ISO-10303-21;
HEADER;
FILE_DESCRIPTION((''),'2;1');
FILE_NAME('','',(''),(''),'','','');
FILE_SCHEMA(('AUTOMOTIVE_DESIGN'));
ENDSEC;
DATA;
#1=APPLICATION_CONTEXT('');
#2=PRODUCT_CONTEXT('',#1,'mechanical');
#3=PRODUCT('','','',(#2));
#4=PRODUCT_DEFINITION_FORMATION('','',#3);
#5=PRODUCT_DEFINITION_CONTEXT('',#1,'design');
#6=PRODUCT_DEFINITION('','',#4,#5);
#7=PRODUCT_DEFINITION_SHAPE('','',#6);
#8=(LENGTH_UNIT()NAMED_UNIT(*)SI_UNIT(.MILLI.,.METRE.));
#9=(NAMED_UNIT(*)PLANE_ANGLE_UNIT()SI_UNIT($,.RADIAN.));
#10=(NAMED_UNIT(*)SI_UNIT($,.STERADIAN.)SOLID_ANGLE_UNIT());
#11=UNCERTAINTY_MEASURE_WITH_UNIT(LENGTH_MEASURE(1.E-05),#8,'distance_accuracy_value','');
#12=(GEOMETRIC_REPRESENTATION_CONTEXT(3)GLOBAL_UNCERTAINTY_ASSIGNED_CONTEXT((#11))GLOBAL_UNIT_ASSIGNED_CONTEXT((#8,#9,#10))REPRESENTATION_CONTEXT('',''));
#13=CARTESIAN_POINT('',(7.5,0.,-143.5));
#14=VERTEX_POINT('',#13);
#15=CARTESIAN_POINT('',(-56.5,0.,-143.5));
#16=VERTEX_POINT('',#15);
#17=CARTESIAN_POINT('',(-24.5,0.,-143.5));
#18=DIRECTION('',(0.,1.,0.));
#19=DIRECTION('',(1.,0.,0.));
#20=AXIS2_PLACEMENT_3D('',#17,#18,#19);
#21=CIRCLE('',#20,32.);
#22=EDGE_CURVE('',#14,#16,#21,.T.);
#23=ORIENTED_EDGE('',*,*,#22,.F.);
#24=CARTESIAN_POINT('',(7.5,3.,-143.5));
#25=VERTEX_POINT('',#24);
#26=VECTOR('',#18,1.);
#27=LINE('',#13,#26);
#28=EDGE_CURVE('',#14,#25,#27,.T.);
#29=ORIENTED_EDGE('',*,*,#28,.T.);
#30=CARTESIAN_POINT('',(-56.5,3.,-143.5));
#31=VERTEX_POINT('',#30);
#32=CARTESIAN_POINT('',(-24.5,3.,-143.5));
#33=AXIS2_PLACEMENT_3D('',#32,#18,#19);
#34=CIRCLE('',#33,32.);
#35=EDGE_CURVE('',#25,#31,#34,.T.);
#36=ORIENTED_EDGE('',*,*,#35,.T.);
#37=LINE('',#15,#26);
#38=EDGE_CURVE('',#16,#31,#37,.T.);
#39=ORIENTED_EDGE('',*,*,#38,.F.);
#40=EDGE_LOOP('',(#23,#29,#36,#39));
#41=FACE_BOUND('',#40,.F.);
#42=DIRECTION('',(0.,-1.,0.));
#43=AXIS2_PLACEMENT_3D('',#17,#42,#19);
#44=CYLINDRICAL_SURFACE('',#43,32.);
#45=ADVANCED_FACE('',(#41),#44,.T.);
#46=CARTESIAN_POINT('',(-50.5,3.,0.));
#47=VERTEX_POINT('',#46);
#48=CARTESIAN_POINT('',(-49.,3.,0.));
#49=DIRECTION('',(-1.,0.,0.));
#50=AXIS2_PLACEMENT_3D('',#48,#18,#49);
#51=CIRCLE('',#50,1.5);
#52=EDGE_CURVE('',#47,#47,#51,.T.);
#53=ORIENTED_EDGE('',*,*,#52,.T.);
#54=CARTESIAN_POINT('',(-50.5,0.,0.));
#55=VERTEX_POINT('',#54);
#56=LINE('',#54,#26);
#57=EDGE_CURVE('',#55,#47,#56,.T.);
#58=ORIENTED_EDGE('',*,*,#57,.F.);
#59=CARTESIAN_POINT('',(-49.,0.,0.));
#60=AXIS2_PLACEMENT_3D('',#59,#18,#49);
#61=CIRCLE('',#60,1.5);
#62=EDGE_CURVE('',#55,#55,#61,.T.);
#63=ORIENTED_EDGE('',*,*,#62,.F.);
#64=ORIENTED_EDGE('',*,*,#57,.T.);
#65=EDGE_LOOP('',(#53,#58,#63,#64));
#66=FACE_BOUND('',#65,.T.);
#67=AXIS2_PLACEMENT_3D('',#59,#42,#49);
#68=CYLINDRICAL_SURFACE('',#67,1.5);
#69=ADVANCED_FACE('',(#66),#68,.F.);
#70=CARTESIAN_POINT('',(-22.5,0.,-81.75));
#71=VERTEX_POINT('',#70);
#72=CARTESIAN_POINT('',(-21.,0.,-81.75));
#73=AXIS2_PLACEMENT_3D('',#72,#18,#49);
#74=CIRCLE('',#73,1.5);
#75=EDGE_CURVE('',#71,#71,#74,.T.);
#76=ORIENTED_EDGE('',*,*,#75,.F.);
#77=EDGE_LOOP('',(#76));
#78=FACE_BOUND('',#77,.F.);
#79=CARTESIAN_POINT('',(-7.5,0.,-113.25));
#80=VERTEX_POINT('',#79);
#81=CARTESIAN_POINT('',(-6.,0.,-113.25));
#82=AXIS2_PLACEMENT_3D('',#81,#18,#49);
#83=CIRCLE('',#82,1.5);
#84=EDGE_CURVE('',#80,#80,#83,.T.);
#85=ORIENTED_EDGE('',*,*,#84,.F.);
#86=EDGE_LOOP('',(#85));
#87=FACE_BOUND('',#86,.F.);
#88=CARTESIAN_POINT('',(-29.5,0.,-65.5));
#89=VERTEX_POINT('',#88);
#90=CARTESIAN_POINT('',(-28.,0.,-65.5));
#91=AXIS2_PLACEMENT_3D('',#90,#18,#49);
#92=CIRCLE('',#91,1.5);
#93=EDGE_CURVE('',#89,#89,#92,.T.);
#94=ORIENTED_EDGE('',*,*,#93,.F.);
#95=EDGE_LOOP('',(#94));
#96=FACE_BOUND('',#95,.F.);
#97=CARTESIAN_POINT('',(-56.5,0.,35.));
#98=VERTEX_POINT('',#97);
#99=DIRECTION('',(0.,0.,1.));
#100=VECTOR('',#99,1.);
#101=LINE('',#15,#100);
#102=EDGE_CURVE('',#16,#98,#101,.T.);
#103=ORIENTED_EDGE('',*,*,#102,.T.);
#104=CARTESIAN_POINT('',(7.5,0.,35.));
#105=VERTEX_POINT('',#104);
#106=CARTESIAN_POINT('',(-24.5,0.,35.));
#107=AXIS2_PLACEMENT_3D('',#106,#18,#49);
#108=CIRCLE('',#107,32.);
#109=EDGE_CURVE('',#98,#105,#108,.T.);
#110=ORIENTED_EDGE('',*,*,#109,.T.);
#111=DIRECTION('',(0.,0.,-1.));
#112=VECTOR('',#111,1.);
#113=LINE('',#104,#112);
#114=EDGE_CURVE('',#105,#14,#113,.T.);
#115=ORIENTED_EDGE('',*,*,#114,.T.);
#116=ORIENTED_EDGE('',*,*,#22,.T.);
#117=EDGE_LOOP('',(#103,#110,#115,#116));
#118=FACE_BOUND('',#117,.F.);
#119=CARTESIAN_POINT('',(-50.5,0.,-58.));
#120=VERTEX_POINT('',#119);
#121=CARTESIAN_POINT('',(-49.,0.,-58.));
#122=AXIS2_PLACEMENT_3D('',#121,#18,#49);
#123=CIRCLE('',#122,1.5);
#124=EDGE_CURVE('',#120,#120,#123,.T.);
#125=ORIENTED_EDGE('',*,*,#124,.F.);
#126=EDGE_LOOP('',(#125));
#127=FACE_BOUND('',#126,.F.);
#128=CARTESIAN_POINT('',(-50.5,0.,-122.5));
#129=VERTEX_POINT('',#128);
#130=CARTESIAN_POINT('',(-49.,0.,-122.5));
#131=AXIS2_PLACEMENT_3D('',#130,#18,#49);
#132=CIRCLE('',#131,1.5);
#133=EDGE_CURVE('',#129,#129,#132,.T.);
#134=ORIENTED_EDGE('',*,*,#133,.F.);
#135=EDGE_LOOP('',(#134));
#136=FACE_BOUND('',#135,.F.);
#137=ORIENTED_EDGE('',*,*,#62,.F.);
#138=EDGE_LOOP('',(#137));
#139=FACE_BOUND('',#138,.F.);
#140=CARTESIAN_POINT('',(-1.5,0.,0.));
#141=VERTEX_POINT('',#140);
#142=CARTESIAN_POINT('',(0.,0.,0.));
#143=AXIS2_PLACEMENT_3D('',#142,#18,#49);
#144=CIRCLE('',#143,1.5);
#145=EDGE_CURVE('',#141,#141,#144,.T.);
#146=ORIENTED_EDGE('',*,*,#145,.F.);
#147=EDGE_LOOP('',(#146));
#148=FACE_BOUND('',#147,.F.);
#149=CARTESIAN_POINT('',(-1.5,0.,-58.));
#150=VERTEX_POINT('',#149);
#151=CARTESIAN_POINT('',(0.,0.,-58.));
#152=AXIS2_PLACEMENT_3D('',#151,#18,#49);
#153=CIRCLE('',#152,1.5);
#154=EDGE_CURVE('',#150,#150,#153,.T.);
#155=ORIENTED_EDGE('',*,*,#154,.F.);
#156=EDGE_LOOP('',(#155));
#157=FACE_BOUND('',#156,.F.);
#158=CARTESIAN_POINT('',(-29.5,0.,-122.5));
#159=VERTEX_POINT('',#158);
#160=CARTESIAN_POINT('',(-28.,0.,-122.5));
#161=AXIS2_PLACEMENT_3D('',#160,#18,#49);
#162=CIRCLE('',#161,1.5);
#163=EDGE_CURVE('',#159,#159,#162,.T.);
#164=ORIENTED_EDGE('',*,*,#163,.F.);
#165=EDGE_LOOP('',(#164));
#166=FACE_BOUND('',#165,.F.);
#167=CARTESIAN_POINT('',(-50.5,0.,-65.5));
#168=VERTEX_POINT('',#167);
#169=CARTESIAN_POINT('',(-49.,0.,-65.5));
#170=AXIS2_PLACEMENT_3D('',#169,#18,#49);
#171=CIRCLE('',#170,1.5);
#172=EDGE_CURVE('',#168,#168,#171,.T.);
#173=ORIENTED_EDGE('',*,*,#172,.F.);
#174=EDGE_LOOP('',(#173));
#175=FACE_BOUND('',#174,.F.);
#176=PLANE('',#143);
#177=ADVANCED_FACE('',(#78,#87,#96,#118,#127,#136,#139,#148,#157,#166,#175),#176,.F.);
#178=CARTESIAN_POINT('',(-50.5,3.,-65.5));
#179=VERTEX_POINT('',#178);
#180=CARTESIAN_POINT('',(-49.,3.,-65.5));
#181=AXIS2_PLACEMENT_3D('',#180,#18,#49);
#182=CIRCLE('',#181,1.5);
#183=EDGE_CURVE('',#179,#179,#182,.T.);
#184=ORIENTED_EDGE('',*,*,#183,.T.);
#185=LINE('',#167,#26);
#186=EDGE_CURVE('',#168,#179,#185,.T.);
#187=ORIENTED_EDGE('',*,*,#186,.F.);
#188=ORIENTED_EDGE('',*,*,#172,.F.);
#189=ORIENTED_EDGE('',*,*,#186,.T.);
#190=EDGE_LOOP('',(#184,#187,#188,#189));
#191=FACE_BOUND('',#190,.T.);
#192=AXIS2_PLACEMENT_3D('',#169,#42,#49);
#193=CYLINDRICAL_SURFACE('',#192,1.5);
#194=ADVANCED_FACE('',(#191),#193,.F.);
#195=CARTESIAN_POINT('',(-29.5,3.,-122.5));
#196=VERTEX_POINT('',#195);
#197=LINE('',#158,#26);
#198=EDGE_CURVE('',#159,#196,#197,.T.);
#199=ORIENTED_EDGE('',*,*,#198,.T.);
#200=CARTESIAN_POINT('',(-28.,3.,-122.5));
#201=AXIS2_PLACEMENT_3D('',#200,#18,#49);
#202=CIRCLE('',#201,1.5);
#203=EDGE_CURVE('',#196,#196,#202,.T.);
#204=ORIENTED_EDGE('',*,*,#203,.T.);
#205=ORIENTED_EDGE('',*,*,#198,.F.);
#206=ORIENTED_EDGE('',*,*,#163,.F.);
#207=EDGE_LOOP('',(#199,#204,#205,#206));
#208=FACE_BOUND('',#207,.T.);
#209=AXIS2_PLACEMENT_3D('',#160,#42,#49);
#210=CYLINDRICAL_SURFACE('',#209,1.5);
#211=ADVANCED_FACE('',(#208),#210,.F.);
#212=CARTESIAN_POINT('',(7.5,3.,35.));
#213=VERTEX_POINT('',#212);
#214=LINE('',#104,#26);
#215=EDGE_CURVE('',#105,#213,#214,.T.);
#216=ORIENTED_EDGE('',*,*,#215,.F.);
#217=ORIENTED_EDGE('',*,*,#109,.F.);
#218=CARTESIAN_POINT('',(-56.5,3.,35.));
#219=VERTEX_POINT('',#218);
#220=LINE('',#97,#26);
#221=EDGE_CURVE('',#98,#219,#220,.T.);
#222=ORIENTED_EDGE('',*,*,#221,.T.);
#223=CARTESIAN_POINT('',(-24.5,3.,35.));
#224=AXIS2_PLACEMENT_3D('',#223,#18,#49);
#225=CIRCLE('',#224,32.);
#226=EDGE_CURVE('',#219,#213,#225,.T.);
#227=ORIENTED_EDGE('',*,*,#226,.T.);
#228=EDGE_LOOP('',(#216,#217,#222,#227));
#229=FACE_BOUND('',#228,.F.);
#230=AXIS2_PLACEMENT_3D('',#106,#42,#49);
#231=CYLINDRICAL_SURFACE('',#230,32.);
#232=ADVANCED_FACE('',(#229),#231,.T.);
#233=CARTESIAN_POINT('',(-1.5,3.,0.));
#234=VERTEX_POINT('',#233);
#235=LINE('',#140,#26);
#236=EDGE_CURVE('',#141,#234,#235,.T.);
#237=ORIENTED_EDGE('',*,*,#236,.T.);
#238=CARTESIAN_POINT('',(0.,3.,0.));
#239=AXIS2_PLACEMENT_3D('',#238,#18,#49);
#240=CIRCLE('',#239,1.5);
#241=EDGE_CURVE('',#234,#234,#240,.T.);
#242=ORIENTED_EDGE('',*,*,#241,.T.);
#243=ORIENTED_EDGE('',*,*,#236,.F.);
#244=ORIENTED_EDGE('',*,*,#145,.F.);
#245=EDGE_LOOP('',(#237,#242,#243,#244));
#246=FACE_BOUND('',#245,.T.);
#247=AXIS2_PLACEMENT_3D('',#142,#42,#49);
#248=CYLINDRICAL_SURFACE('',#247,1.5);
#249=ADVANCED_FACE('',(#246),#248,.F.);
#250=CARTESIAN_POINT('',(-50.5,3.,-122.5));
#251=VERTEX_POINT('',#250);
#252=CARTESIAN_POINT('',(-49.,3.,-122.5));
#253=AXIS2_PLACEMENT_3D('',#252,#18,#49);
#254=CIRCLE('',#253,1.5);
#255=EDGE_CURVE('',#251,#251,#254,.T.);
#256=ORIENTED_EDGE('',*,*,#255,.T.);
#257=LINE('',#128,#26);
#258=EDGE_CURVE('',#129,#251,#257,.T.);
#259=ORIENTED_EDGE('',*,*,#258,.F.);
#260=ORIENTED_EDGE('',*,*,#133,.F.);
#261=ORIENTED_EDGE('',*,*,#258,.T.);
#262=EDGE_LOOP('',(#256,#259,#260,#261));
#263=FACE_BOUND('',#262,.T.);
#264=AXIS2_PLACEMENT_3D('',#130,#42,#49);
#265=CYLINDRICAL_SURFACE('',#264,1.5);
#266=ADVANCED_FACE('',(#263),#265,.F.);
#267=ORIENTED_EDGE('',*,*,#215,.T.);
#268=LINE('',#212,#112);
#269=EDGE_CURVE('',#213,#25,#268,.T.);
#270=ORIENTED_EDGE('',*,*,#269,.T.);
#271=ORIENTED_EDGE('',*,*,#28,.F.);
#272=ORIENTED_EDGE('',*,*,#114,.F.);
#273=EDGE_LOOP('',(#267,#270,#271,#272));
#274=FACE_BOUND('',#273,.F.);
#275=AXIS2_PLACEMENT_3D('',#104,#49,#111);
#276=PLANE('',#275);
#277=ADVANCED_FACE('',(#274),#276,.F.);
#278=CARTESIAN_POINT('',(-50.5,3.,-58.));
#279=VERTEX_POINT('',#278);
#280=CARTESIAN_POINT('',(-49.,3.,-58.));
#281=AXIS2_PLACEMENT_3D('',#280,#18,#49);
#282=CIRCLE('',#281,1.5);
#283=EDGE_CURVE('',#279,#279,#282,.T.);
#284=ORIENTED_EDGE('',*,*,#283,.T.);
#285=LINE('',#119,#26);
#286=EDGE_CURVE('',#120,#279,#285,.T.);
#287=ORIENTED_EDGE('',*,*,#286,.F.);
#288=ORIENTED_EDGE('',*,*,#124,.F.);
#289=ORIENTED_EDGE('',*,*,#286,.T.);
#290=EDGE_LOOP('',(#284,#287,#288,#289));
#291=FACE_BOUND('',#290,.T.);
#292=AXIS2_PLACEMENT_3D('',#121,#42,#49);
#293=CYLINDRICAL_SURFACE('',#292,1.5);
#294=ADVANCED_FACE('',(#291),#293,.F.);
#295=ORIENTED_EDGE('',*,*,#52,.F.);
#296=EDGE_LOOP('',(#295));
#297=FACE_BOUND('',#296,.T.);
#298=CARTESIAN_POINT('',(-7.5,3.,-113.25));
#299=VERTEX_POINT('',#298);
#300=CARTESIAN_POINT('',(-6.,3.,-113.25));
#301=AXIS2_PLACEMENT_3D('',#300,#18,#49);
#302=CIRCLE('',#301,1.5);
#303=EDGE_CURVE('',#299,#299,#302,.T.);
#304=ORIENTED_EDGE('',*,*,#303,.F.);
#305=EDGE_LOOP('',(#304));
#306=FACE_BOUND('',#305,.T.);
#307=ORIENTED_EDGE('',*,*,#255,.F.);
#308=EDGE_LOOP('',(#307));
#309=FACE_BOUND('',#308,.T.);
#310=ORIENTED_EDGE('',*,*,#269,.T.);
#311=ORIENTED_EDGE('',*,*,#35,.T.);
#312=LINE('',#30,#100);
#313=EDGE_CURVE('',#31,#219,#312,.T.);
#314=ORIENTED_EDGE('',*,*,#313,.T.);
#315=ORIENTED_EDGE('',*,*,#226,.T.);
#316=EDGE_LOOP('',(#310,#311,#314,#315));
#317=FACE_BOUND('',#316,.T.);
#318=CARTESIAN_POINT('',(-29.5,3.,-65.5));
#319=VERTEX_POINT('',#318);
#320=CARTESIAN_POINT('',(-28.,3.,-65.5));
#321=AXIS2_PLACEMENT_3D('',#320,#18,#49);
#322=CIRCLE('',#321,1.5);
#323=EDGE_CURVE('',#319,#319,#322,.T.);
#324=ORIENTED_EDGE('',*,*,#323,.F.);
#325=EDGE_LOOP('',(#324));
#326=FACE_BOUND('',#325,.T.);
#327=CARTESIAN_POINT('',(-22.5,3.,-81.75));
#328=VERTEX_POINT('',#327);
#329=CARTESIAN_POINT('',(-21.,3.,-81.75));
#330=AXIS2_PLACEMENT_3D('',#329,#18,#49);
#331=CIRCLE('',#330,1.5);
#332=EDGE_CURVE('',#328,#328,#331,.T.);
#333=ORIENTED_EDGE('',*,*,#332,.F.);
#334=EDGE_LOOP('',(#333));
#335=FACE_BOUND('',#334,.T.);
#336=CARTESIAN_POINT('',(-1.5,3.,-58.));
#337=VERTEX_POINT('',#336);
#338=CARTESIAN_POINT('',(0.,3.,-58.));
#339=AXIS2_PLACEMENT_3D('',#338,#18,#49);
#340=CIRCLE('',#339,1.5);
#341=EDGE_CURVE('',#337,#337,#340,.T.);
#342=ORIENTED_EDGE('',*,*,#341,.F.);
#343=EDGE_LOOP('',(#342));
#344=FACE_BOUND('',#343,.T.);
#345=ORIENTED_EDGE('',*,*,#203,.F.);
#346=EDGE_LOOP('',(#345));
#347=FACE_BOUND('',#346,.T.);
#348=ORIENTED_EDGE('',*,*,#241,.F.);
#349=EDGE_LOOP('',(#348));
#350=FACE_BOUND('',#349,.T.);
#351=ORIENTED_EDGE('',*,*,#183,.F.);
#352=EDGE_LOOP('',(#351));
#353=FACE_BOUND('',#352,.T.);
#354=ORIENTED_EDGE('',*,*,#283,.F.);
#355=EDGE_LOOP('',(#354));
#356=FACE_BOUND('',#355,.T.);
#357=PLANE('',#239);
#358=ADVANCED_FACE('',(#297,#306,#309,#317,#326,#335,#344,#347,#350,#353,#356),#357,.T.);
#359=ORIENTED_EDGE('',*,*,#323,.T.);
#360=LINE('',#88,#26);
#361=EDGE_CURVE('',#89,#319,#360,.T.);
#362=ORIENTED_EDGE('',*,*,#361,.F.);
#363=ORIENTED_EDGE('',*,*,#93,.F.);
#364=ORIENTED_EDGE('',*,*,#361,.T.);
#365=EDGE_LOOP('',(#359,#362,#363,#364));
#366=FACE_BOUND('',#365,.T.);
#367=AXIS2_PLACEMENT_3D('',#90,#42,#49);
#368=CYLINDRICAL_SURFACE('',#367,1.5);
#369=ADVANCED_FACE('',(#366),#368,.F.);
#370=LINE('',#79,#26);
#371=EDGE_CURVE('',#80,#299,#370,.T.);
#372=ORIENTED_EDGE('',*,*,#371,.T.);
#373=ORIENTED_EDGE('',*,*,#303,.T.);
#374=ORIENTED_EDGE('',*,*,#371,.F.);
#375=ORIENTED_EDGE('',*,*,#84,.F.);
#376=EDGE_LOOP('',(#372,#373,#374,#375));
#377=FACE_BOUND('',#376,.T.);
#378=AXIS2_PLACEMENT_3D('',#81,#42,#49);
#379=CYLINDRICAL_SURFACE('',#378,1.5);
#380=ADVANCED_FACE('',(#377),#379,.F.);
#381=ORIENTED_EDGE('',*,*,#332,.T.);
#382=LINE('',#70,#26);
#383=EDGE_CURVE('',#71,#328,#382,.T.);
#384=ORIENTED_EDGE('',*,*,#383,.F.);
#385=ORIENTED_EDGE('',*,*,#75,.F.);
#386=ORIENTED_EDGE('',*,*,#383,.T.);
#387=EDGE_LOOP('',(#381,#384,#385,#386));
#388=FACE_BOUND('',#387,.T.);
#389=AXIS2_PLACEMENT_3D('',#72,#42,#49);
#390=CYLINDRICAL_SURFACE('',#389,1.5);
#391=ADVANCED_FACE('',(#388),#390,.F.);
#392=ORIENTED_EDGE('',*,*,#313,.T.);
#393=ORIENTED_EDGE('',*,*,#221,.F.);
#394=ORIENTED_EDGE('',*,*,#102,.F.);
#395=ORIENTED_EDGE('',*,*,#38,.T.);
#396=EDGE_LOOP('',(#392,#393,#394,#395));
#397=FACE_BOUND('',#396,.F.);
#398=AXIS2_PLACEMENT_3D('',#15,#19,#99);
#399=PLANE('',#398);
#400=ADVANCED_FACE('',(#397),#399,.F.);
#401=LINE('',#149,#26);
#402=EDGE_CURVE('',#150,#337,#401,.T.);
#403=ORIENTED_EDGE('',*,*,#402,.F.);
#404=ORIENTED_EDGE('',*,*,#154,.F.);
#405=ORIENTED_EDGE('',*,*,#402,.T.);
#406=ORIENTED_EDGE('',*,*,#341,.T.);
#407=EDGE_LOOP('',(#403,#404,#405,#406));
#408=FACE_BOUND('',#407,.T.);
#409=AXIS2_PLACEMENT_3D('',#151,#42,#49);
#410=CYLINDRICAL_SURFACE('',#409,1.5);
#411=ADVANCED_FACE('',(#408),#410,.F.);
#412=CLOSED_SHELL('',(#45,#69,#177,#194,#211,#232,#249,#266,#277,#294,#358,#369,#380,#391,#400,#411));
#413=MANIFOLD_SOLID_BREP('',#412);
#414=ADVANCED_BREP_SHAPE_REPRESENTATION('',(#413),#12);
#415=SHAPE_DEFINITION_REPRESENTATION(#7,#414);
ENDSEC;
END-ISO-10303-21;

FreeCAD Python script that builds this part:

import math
import FreeCAD as App
import Part
import Sketcher

V = App.Vector

doc = App.newDocument("Part")
body = doc.addObject("PartDesign::Body", "Body")

sketch1 = body.newObject("Sketcher::SketchObject", "Sketch")
sketch1.AttachmentSupport = (doc.getObject("XZ_Plane"), [""])
sketch1.MapMode = "FlatFace"
sketch1.addGeometry(Part.ArcOfCircle(Part.Circle(V(-24.5, 35, 0), V(0, 0, 1), 32), math.radians(0), math.radians(180)), False)
sketch1.addGeometry(Part.LineSegment(V(7.5, 35, 0), V(7.5, -143.5, 0)), False)
sketch1.addGeometry(Part.ArcOfCircle(Part.Circle(V(-24.5, -143.5, 0), V(0, 0, 1), 32), math.radians(180), math.radians(360)), False)
sketch1.addGeometry(Part.LineSegment(V(-56.5, -143.5, 0), V(-56.5, 35, 0)), False)
sketch1.addGeometry(Part.Circle(V(-6, -113.25, 0), V(0, 0, 1), 1.5), False)
sketch1.addGeometry(Part.Circle(V(0, -58, 0), V(0, 0, 1), 1.5), False)
sketch1.addGeometry(Part.Circle(V(-21, -81.75, 0), V(0, 0, 1), 1.5), False)
sketch1.addGeometry(Part.Circle(V(-28, -122.5, 0), V(0, 0, 1), 1.5), False)
sketch1.addGeometry(Part.Circle(V(-49, -122.5, 0), V(0, 0, 1), 1.5), False)
sketch1.addGeometry(Part.Circle(V(-28, -65.5, 0), V(0, 0, 1), 1.5), False)
sketch1.addGeometry(Part.Circle(V(-49, -65.5, 0), V(0, 0, 1), 1.5), False)
sketch1.addGeometry(Part.Circle(V(-49, -58, 0), V(0, 0, 1), 1.5), False)
sketch1.addGeometry(Part.Circle(V(0, 0, 0), V(0, 0, 1), 1.5), False)
sketch1.addGeometry(Part.Circle(V(-49, 0, 0), V(0, 0, 1), 1.5), False)
sketch1.addConstraint(Sketcher.Constraint("Tangent", 0, 1, 1, 1))
sketch1.addConstraint(Sketcher.Constraint("Tangent", 1, 2, 2, 2))
sketch1.addConstraint(Sketcher.Constraint("Tangent", 2, 1, 3, 1))
sketch1.addConstraint(Sketcher.Constraint("Tangent", 3, 2, 0, 2))
sketch1.addConstraint(Sketcher.Constraint("Vertical", 1))
sketch1.addConstraint(Sketcher.Constraint("Vertical", 3))
sketch1.addConstraint(Sketcher.Constraint("Coincident", 12, 3, -1, 1))
sketch1.addConstraint(Sketcher.Constraint("Equal", 4, 5))
sketch1.addConstraint(Sketcher.Constraint("Equal", 5, 6))
sketch1.addConstraint(Sketcher.Constraint("Equal", 6, 7))
sketch1.addConstraint(Sketcher.Constraint("Equal", 7, 8))
sketch1.addConstraint(Sketcher.Constraint("Equal", 8, 9))
sketch1.addConstraint(Sketcher.Constraint("Equal", 9, 10))
sketch1.addConstraint(Sketcher.Constraint("Equal", 10, 11))
sketch1.addConstraint(Sketcher.Constraint("Equal", 11, 12))
sketch1.addConstraint(Sketcher.Constraint("Equal", 12, 13))
sketch1.addConstraint(Sketcher.Constraint("PointOnObject", 5, 3, -2))
sketch1.addConstraint(Sketcher.Constraint("PointOnObject", 13, 3, -1))
sketch1.addConstraint(Sketcher.Constraint("Horizontal", 7, 3, 8, 3))
sketch1.addConstraint(Sketcher.Constraint("Horizontal", 9, 3, 10, 3))
sketch1.addConstraint(Sketcher.Constraint("Horizontal", 5, 3, 11, 3))
sketch1.addConstraint(Sketcher.Constraint("Vertical", 7, 3, 9, 3))
sketch1.addConstraint(Sketcher.Constraint("Vertical", 8, 3, 10, 3))
sketch1.addConstraint(Sketcher.Constraint("Vertical", 10, 3, 11, 3))
sketch1.addConstraint(Sketcher.Constraint("Vertical", 11, 3, 13, 3))
sketch1.addConstraint(Sketcher.Constraint("Diameter", 4, 3.0))
sketch1.addConstraint(Sketcher.Constraint("Radius", 0, 32.0))
sketch1.addConstraint(Sketcher.Constraint("DistanceY", 5, 3, -1, 1, 58.0))
sketch1.addConstraint(Sketcher.Constraint("DistanceX", 6, 3, -1, 1, 21.0))
sketch1.addConstraint(Sketcher.Constraint("DistanceX", 8, 3, -1, 1, 49.0))
sketch1.addConstraint(Sketcher.Constraint("DistanceX", 6, 3, 4, 3, 15.0))
sketch1.addConstraint(Sketcher.Constraint("DistanceY", 2, 3, 7, 3, 21.0))
sketch1.addConstraint(Sketcher.Constraint("DistanceX", 8, 3, 7, 3, 21.0))
sketch1.addConstraint(Sketcher.Constraint("DistanceY", 7, 3, 9, 3, 57.0))
sketch1.addConstraint(Sketcher.Constraint("DistanceY", 4, 3, 6, 3, 31.5))
sketch1.addConstraint(Sketcher.Constraint("DistanceX", 2, 3, 6, 3, 3.5))
sketch1.addConstraint(Sketcher.Constraint("DistanceY", 1, 2, 1, 1, 178.5))
sketch1.addConstraint(Sketcher.Constraint("DistanceY", -1, 1, 0, 3, 35.0))
sketch1.addConstraint(Sketcher.Constraint("DistanceY", 4, 3, -1, 1, 113.25))
pad1 = body.newObject("PartDesign::Pad", "Pad")
pad1.Profile = sketch1
pad1.Length = 3
pad1.Reversed = True

doc.recompute()
